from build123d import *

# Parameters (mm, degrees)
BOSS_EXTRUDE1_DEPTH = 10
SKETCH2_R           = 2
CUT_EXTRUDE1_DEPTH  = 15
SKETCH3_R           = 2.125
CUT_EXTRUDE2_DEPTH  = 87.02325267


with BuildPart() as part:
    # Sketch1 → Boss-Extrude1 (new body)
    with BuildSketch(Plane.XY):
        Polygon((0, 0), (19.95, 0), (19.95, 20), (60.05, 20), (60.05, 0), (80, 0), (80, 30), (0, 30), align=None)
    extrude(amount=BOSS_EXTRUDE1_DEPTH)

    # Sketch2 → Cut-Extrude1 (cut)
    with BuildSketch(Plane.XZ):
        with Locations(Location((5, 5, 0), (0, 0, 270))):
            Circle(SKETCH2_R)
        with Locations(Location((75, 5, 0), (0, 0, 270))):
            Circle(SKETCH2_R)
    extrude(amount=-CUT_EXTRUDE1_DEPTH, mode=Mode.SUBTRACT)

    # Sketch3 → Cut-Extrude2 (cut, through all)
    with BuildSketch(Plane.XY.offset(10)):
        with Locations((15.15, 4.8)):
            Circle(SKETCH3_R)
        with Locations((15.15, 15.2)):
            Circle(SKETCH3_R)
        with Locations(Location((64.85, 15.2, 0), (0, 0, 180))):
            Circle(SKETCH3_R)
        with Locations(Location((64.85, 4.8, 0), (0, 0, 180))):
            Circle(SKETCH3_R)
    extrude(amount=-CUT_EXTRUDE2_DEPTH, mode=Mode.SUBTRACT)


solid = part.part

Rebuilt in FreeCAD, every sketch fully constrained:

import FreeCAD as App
import Part
import Sketcher
Q = App.Units.Quantity


def add_polygon(sketch, points):
    """Adds a closed chain of lines whose ends are joined by coincident constraints."""
    first, n = sketch.GeometryCount, len(points)
    for a, b in zip(points, points[1:] + points[:1]):
        sketch.addGeometry(Part.LineSegment(App.Vector(*a, 0), App.Vector(*b, 0)), False)
    for i in range(n):
        sketch.addConstraint(Sketcher.Constraint("Coincident", first + i, 2, first + (i + 1) % n, 1))

doc = App.newDocument("Part")
body = doc.addObject("PartDesign::Body", "Body")

# Sketch on XY plane
sketch1 = doc.addObject("Sketcher::SketchObject", "Sketch")
body.addObject(sketch1)
sketch1.AttachmentSupport = (doc.XY_Plane, [""])
sketch1.MapMode = "FlatFace"
add_polygon(sketch1, [(0, 0), (20, 0), (20, 20), (60, 20), (60, 0), (80, 0), (80, 30), (0, 30)])  # lines 0-7
sketch1.addConstraint([
    Sketcher.Constraint("Horizontal", 0),
    Sketcher.Constraint("Vertical", 1),
    Sketcher.Constraint("Horizontal", 2),
    Sketcher.Constraint("Vertical", 3),
    Sketcher.Constraint("Horizontal", 4),
    Sketcher.Constraint("Vertical", 5),
    Sketcher.Constraint("Horizontal", 6),
    Sketcher.Constraint("Vertical", 7),
    Sketcher.Constraint("Coincident", 7, 2, -1, 1),
    Sketcher.Constraint("PointOnObject", 3, 2, -1),
    Sketcher.Constraint("Equal", 0, 4),
    Sketcher.Constraint("DistanceX", 6, 2, 6, 1, Q("80 mm")),
    Sketcher.Constraint("DistanceY", 1, 1, 1, 2, Q("20 mm")),
    Sketcher.Constraint("DistanceY", 5, 1, 5, 2, Q("30 mm")),
    Sketcher.Constraint("DistanceX", 2, 1, 2, 2, Q("40.1 mm")),
])
pad1 = doc.addObject("PartDesign::Pad", "Pad")
body.addObject(pad1)
pad1.Profile = sketch1
pad1.Length = 10

# Sketch on XZ plane
sketch2 = doc.addObject("Sketcher::SketchObject", "Sketch001")
body.addObject(sketch2)
sketch2.AttachmentSupport = (doc.XZ_Plane, [""])
sketch2.MapMode = "FlatFace"
sketch2.addGeometry([
    Part.Circle(App.Vector(5, 5, 0), App.Vector(0, 0, 1), 2),
    Part.Circle(App.Vector(75, 5, 0), App.Vector(0, 0, 1), 2),
], False)
sketch2.addConstraint([
    Sketcher.Constraint("Equal", 0, 1),
    Sketcher.Constraint("Horizontal", 0, 3, 1, 3),
    Sketcher.Constraint("Diameter", 0, Q("4 mm")),
    Sketcher.Constraint("DistanceX", -1, 1, 0, 3, Q("5 mm")),
    Sketcher.Constraint("DistanceY", -1, 1, 0, 3, Q("5 mm")),
    Sketcher.Constraint("DistanceX", -1, 1, 1, 3, Q("75 mm")),
])
pocket1 = doc.addObject("PartDesign::Pocket", "Pocket")
body.addObject(pocket1)
pocket1.Profile = sketch2
pocket1.Length = 15

# Sketch on XY plane
sketch3 = doc.addObject("Sketcher::SketchObject", "Sketch002")
body.addObject(sketch3)
sketch3.AttachmentSupport = (doc.XY_Plane, [""])
sketch3.MapMode = "FlatFace"
sketch3.AttachmentOffset = App.Placement(App.Vector(0, 0, 10), App.Rotation())
sketch3.addGeometry([
    Part.Circle(App.Vector(15.2, 4.8, 0), App.Vector(0, 0, 1), 2.1),
    Part.Circle(App.Vector(15.2, 15.2, 0), App.Vector(0, 0, 1), 2.1),
    Part.Circle(App.Vector(64.8, 15.2, 0), App.Vector(0, 0, 1), 2.1),
    Part.Circle(App.Vector(64.8, 4.8, 0), App.Vector(0, 0, 1), 2.1),
], False)
sketch3.addConstraint([
    Sketcher.Constraint("Equal", 0, 1),
    Sketcher.Constraint("Equal", 1, 2),
    Sketcher.Constraint("Equal", 2, 3),
    Sketcher.Constraint("Horizontal", 1, 3, 2, 3),
    Sketcher.Constraint("Horizontal", 0, 3, 3, 3),
    Sketcher.Constraint("Vertical", 0, 3, 1, 3),
    Sketcher.Constraint("Vertical", 2, 3, 3, 3),
    Sketcher.Constraint("Diameter", 0, Q("4.25 mm")),
    Sketcher.Constraint("DistanceY", -1, 1, 0, 3, Q("4.8 mm")),
    Sketcher.Constraint("DistanceY", -1, 1, 1, 3, Q("15.2 mm")),
    Sketcher.Constraint("DistanceX", 1, 3, 2, 3, Q("49.7 mm")),
    Sketcher.Constraint("DistanceX", -1, 1, 0, 3, Q("15.15 mm")),
])
pocket2 = doc.addObject("PartDesign::Pocket", "Pocket001")
body.addObject(pocket2)
pocket2.Profile = sketch3
pocket2.Type = "ThroughAll"

doc.recompute()
